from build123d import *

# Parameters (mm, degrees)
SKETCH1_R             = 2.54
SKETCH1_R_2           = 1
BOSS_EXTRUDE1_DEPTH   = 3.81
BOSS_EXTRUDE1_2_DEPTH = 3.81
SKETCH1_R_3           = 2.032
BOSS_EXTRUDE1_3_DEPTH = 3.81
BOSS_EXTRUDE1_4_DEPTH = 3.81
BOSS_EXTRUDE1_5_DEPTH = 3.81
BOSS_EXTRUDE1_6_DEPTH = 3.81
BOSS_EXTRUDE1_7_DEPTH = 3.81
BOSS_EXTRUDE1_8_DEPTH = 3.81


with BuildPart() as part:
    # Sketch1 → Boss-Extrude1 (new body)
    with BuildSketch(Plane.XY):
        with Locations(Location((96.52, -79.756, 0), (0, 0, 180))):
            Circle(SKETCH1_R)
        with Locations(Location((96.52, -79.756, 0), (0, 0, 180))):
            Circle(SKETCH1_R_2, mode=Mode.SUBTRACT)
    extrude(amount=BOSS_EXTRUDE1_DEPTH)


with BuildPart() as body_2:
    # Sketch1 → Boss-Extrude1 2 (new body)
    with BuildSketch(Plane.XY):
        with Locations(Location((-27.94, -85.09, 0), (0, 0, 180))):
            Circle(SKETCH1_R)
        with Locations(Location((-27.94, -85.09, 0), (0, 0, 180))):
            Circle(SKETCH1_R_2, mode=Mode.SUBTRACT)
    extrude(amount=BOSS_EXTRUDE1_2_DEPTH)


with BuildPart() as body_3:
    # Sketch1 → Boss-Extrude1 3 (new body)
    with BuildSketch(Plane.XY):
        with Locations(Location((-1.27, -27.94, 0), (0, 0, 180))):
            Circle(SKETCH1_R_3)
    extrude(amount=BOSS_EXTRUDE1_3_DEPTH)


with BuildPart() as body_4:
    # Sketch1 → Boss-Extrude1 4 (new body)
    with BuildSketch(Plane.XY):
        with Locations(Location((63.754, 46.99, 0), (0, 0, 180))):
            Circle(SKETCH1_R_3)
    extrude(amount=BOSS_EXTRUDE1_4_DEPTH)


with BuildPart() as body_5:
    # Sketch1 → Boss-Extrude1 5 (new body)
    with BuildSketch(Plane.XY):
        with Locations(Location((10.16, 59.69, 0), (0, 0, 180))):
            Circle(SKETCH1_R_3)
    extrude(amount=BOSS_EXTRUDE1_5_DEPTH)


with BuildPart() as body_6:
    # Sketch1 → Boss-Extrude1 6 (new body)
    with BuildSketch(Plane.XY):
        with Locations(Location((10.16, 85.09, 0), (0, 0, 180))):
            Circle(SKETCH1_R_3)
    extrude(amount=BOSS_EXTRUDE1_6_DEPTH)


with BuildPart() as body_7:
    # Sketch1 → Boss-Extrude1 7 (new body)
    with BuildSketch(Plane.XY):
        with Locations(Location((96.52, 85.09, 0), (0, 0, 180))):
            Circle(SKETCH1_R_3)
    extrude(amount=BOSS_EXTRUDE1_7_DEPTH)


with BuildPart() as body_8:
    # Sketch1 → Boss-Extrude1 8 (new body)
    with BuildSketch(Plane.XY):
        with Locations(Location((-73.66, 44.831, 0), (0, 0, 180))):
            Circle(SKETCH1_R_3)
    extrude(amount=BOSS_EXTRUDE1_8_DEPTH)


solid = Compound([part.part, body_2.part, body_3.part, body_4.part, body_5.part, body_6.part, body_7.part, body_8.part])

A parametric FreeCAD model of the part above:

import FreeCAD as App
import Part
import Sketcher
from FreeCAD import Vector
Q = App.Units.Quantity

doc = App.newDocument("Part")
body = doc.addObject("PartDesign::Body", "Body")

# Sketch on XY plane
sketch1 = doc.addObject("Sketcher::SketchObject", "Sketch")
body.addObject(sketch1)
sketch1.AttachmentSupport = (doc.XY_Plane, [""])
sketch1.MapMode = "FlatFace"
sketch1.addGeometry([
    Part.Circle(Vector(96.5, -79.8, 0), Vector(0, 0, 1), 2.5),
    Part.Circle(Vector(96.5, -79.8, 0), Vector(0, 0, 1), 1),
], False)
sketch1.addConstraint([
    Sketcher.Constraint("Coincident", 1, 3, 0, 3),
    Sketcher.Constraint("Diameter", 0, Q("0.2 in")),
    Sketcher.Constraint("DistanceX", -1, 1, 0, 3, Q("3.8 in")),
    Sketcher.Constraint("Diameter", 1, 2.0),
    Sketcher.Constraint("DistanceY", 0, 3, -1, 1, Q("3.14 in")),
])
pad1 = doc.addObject("PartDesign::Pad", "Pad")
body.addObject(pad1)
pad1.Profile = sketch1
pad1.Length = Q("0.15 in")
body2 = doc.addObject("PartDesign::Body", "Body001")

# Sketch on XY plane
sketch2 = doc.addObject("Sketcher::SketchObject", "Sketch001")
body2.addObject(sketch2)
sketch2.AttachmentSupport = (doc.getObject("XY_Plane001"), [""])
sketch2.MapMode = "FlatFace"
sketch2.addGeometry([
    Part.Circle(Vector(-27.9, -85.1, 0), Vector(0, 0, 1), 2.5),
    Part.Circle(Vector(-27.9, -85.1, 0), Vector(0, 0, 1), 1),
], False)
sketch2.addConstraint([
    Sketcher.Constraint("Coincident", 1, 3, 0, 3),
    Sketcher.Constraint("Diameter", 0, Q("0.2 in")),
    Sketcher.Constraint("DistanceX", 0, 3, -1, 1, Q("1.1 in")),
    Sketcher.Constraint("Diameter", 1, 2.0),
    Sketcher.Constraint("DistanceY", 0, 3, -1, 1, Q("3.35 in")),
])
pad2 = doc.addObject("PartDesign::Pad", "Pad001")
body2.addObject(pad2)
pad2.Profile = sketch2
pad2.Length = Q("0.15 in")
body3 = doc.addObject("PartDesign::Body", "Body002")

# Sketch on XY plane
sketch3 = doc.addObject("Sketcher::SketchObject", "Sketch002")
body3.addObject(sketch3)
sketch3.AttachmentSupport = (doc.getObject("XY_Plane002"), [""])
sketch3.MapMode = "FlatFace"
sketch3.addGeometry(Part.Circle(Vector(-1.3, -27.9, 0), Vector(0, 0, 1), 2), False)
sketch3.addConstraint([
    Sketcher.Constraint("Diameter", 0, Q("0.16 in")),
    Sketcher.Constraint("DistanceY", 0, 3, -1, 1, Q("1.1 in")),
    Sketcher.Constraint("DistanceX", 0, 3, -1, 1, Q("0.05 in")),
])
pad3 = doc.addObject("PartDesign::Pad", "Pad002")
body3.addObject(pad3)
pad3.Profile = sketch3
pad3.Length = Q("0.15 in")
body4 = doc.addObject("PartDesign::Body", "Body003")

# Sketch on XY plane
sketch4 = doc.addObject("Sketcher::SketchObject", "Sketch003")
body4.addObject(sketch4)
sketch4.AttachmentSupport = (doc.getObject("XY_Plane003"), [""])
sketch4.MapMode = "FlatFace"
sketch4.addGeometry(Part.Circle(Vector(63.8, 47, 0), Vector(0, 0, 1), 2), False)
sketch4.addConstraint([
    Sketcher.Constraint("Diameter", 0, Q("0.16 in")),
    Sketcher.Constraint("DistanceX", -1, 1, 0, 3, Q("2.51 in")),
    Sketcher.Constraint("DistanceY", -1, 1, 0, 3, Q("1.85 in")),
])
pad4 = doc.addObject("PartDesign::Pad", "Pad003")
body4.addObject(pad4)
pad4.Profile = sketch4
pad4.Length = Q("0.15 in")
body5 = doc.addObject("PartDesign::Body", "Body004")

# Sketch on XY plane
sketch5 = doc.addObject("Sketcher::SketchObject", "Sketch004")
body5.addObject(sketch5)
sketch5.AttachmentSupport = (doc.getObject("XY_Plane004"), [""])
sketch5.MapMode = "FlatFace"
sketch5.addGeometry(Part.Circle(Vector(10.2, 59.7, 0), Vector(0, 0, 1), 2), False)
sketch5.addConstraint([
    Sketcher.Constraint("Diameter", 0, Q("0.16 in")),
    Sketcher.Constraint("DistanceX", -1, 1, 0, 3, Q("0.4 in")),
    Sketcher.Constraint("DistanceY", -1, 1, 0, 3, Q("2.35 in")),
])
pad5 = doc.addObject("PartDesign::Pad", "Pad004")
body5.addObject(pad5)
pad5.Profile = sketch5
pad5.Length = Q("0.15 in")
body6 = doc.addObject("PartDesign::Body", "Body005")

# Sketch on XY plane
sketch6 = doc.addObject("Sketcher::SketchObject", "Sketch005")
body6.addObject(sketch6)
sketch6.AttachmentSupport = (doc.getObject("XY_Plane005"), [""])
sketch6.MapMode = "FlatFace"
sketch6.addGeometry(Part.Circle(Vector(10.2, 85.1, 0), Vector(0, 0, 1), 2), False)
sketch6.addConstraint([
    Sketcher.Constraint("Diameter", 0, Q("0.16 in")),
    Sketcher.Constraint("DistanceX", -1, 1, 0, 3, Q("0.4 in")),
    Sketcher.Constraint("DistanceY", -1, 1, 0, 3, Q("3.35 in")),
])
pad6 = doc.addObject("PartDesign::Pad", "Pad005")
body6.addObject(pad6)
pad6.Profile = sketch6
pad6.Length = Q("0.15 in")
body7 = doc.addObject("PartDesign::Body", "Body006")

# Sketch on XY plane
sketch7 = doc.addObject("Sketcher::SketchObject", "Sketch006")
body7.addObject(sketch7)
sketch7.AttachmentSupport = (doc.getObject("XY_Plane006"), [""])
sketch7.MapMode = "FlatFace"
sketch7.addGeometry(Part.Circle(Vector(96.5, 85.1, 0), Vector(0, 0, 1), 2), False)
sketch7.addConstraint([
    Sketcher.Constraint("Diameter", 0, Q("0.16 in")),
    Sketcher.Constraint("DistanceX", -1, 1, 0, 3, Q("3.8 in")),
    Sketcher.Constraint("DistanceY", -1, 1, 0, 3, Q("3.35 in")),
])
pad7 = doc.addObject("PartDesign::Pad", "Pad006")
body7.addObject(pad7)
pad7.Profile = sketch7
pad7.Length = Q("0.15 in")
body8 = doc.addObject("PartDesign::Body", "Body007")

# Sketch on XY plane
sketch8 = doc.addObject("Sketcher::SketchObject", "Sketch007")
body8.addObject(sketch8)
sketch8.AttachmentSupport = (doc.getObject("XY_Plane007"), [""])
sketch8.MapMode = "FlatFace"
sketch8.addGeometry(Part.Circle(Vector(-73.7, 44.8, 0), Vector(0, 0, 1), 2), False)
sketch8.addConstraint([
    Sketcher.Constraint("Diameter", 0, Q("0.16 in")),
    Sketcher.Constraint("DistanceX", 0, 3, -1, 1, Q("2.9 in")),
    Sketcher.Constraint("DistanceY", -1, 1, 0, 3, Q("1.765 in")),
])
pad8 = doc.addObject("PartDesign::Pad", "Pad007")
body8.addObject(pad8)
pad8.Profile = sketch8
pad8.Length = Q("0.15 in")

doc.recompute()
